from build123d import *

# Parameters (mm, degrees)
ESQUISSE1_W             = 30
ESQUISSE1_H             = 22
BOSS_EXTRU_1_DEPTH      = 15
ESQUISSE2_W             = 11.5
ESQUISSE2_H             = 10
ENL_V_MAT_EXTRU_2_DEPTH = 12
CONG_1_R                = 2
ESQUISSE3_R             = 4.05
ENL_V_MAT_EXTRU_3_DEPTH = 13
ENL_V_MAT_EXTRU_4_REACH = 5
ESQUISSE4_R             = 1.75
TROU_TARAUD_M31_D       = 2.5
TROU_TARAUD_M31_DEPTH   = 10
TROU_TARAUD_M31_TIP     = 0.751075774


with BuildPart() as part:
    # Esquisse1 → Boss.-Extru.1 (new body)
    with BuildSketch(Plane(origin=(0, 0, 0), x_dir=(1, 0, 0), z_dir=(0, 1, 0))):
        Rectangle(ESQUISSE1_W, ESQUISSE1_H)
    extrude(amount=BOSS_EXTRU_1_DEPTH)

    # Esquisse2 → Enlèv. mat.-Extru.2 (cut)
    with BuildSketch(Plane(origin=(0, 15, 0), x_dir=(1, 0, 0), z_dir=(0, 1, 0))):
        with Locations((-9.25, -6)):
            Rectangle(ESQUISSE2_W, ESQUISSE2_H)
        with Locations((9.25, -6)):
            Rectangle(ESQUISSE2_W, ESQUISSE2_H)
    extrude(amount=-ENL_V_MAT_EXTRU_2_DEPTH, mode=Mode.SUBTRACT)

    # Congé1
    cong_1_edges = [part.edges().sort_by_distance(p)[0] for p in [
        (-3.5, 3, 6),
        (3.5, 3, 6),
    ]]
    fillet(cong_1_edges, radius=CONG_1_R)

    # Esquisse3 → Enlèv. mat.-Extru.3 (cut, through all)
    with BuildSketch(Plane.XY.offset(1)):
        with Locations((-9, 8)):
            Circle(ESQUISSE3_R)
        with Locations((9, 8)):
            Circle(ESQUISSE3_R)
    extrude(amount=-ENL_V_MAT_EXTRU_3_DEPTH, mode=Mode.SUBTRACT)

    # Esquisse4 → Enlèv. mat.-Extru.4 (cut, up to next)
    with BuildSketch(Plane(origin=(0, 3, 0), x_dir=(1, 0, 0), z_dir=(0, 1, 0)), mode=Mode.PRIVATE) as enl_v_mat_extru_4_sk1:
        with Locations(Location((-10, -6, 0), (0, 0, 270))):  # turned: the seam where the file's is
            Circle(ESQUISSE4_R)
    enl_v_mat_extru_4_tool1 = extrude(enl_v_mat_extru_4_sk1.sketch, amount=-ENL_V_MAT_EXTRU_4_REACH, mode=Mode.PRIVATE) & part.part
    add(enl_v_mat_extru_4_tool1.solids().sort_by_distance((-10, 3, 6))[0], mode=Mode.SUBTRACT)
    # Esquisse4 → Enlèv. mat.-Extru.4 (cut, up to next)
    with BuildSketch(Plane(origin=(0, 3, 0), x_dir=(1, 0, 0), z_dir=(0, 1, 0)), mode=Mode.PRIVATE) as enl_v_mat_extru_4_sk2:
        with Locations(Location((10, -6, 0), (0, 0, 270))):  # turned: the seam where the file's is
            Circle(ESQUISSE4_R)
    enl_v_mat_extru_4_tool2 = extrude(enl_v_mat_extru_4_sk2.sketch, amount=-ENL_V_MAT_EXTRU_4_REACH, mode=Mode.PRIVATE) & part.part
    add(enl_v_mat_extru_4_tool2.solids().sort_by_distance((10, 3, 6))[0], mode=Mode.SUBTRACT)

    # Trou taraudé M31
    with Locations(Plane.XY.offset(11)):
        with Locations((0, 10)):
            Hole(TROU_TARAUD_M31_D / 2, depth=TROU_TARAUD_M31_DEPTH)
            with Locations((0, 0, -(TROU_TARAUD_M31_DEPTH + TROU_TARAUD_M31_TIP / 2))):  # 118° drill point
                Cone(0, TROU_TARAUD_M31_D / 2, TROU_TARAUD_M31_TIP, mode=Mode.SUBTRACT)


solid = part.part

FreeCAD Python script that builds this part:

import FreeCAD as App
import Part
import Sketcher


def edges_at(feature, points):
    """Names of the edges that pass closest to the given points."""
    edges = feature.Shape.Edges
    near = lambda p: min(range(len(edges)), key=lambda i: edges[i].distToShape(Part.Vertex(*p))[0])
    return sorted({f"Edge{near(p) + 1}" for p in points})


def add_polygon(sketch, points):
    """Adds a closed chain of lines whose ends are joined by coincident constraints."""
    first, n = sketch.GeometryCount, len(points)
    for a, b in zip(points, points[1:] + points[:1]):
        sketch.addGeometry(Part.LineSegment(App.Vector(*a, 0), App.Vector(*b, 0)), False)
    for i in range(n):
        sketch.addConstraint(Sketcher.Constraint("Coincident", first + i, 2, first + (i + 1) % n, 1))

doc = App.newDocument("Part")
params = doc.addObject("Spreadsheet::Sheet", "Params")
for row, (alias, value) in enumerate([
    ("sketch1_width", "30 mm"),
    ("sketch1_height", "22 mm"),
    ("pad1_length", "15 mm"),
    ("sketch2_height", "10 mm"),
    ("sketch2_width", "11.5 mm"),
    ("pocket1_length", "12 mm"),
    ("fillet_radius", "2 mm"),
    ("sketch3_diameter", "8.1 mm"),
    ("sketch4_diameter", "3.5 mm"),
    ("sketch5_diameter", "3.5 mm"),
    ("sketch6_diameter", "2.5 mm"),
    ("hole_diameter", "2.5 mm"),
    ("hole_depth", "10 mm"),
], start=1):
    params.set(f"A{row}", alias)
    params.set(f"B{row}", "=" + value)
    params.setAlias(f"B{row}", alias)

body = doc.addObject("PartDesign::Body", "Body")

sketch1 = body.newObject("Sketcher::SketchObject", "Sketch")
sketch1.AttachmentSupport = (doc.getObject("XZ_Plane"), [""])
sketch1.MapMode = "FlatFace"
add_polygon(sketch1, [(-15, -11), (-15, 11), (15, 11), (15, -11)])
sketch1.addConstraint([
    Sketcher.Constraint("Vertical", 0),
    Sketcher.Constraint("Horizontal", 1),
    Sketcher.Constraint("Vertical", 2),
    Sketcher.Constraint("Horizontal", 3),
    Sketcher.Constraint("Symmetric", 0, 2, 2, 2, -1, 1),
    Sketcher.Constraint("DistanceX", 1, 1, 1, 2, 30.0),
    Sketcher.Constraint("DistanceY", 0, 1, 0, 2, 22.0),
])
sketch1.setExpression("Constraints[9]", "Params.sketch1_width")
sketch1.setExpression("Constraints[10]", "Params.sketch1_height")
pad1 = body.newObject("PartDesign::Pad", "Pad")
pad1.Profile = sketch1
pad1.setExpression("Length", "Params.pad1_length")
pad1.Reversed = True

sketch2 = body.newObject("Sketcher::SketchObject", "Sketch001")
sketch2.AttachmentSupport = (doc.getObject("XZ_Plane"), [""])
sketch2.MapMode = "FlatFace"
sketch2.AttachmentOffset = App.Placement(App.Vector(0, 0, -15), App.Rotation())
add_polygon(sketch2, [(-15, 1), (-15, 11), (-3.5, 11), (-3.5, 1)])
add_polygon(sketch2, [(3.5, 1), (3.5, 11), (15, 11), (15, 1)])
sketch2.addConstraint([
    Sketcher.Constraint("Vertical", 0),
    Sketcher.Constraint("Horizontal", 1),
    Sketcher.Constraint("Vertical", 2),
    Sketcher.Constraint("Horizontal", 3),
    Sketcher.Constraint("Vertical", 4),
    Sketcher.Constraint("Horizontal", 5),
    Sketcher.Constraint("Vertical", 6),
    Sketcher.Constraint("Horizontal", 7),
    Sketcher.Constraint("Symmetric", 1, 2, 4, 2, -2),
    Sketcher.Constraint("Symmetric", 3, 2, 6, 2, -2),
    Sketcher.Constraint("DistanceY", 0, 1, 0, 2, 10.0),
    Sketcher.Constraint("DistanceX", 1, 1, 1, 2, 11.5),
    Sketcher.Constraint("DistanceX", 0, 2, -1, 1, 15.0),
    Sketcher.Constraint("DistanceY", -1, 1, 0, 2, 11.0),
])
sketch2.setExpression("Constraints[18]", "Params.sketch2_height")
sketch2.setExpression("Constraints[19]", "Params.sketch2_width")
pocket1 = body.newObject("PartDesign::Pocket", "Pocket")
pocket1.Profile = sketch2
pocket1.setExpression("Length", "Params.pocket1_length")
pocket1.Reversed = True
doc.recompute()

fillet = body.newObject("PartDesign::Fillet", "Fillet")
fillet.Base = (pocket1, edges_at(pocket1, [(-3.5, 3, 6), (3.5, 3, 6)]))
fillet.setExpression("Radius", "Params.fillet_radius")

sketch3 = body.newObject("Sketcher::SketchObject", "Sketch002")
sketch3.AttachmentSupport = (doc.getObject("XY_Plane"), [""])
sketch3.MapMode = "FlatFace"
sketch3.AttachmentOffset = App.Placement(App.Vector(0, 0, 1), App.Rotation())
sketch3.addGeometry([
    Part.Circle(App.Vector(-9, 8, 0), App.Vector(0, 0, 1), 4.05),
    Part.Circle(App.Vector(9, 8, 0), App.Vector(0, 0, 1), 4.05),
], False)
sketch3.addConstraint([
    Sketcher.Constraint("Equal", 0, 1),
    Sketcher.Constraint("Symmetric", 0, 3, 1, 3, -2),
    Sketcher.Constraint("Diameter", 0, 8.1),
    Sketcher.Constraint("DistanceX", 0, 3, -1, 1, 9.0),
    Sketcher.Constraint("DistanceY", -1, 1, 0, 3, 8.0),
])
sketch3.setExpression("Constraints[2]", "Params.sketch3_diameter")
pocket2 = body.newObject("PartDesign::Pocket", "Pocket001")
pocket2.Profile = sketch3
pocket2.Type = "ThroughAll"

sketch4 = body.newObject("Sketcher::SketchObject", "Sketch003")
sketch4.AttachmentSupport = (doc.getObject("XZ_Plane"), [""])
sketch4.MapMode = "FlatFace"
sketch4.AttachmentOffset = App.Placement(App.Vector(0, 0, -3), App.Rotation())
sketch4.addGeometry(Part.Circle(App.Vector(-10, 6, 0), App.Vector(0, 0, 1), 1.75), False)
sketch4.addConstraint([
    Sketcher.Constraint("Diameter", 0, 3.5),
    Sketcher.Constraint("DistanceX", 0, 3, -1, 1, 10.0),
    Sketcher.Constraint("DistanceY", -1, 1, 0, 3, 6.0),
])
sketch4.setExpression("Constraints[0]", "Params.sketch4_diameter")
pocket3 = body.newObject("PartDesign::Pocket", "Pocket002")
pocket3.Profile = sketch4
pocket3.Type = "UpToFirst"
pocket3.Reversed = True

sketch5 = body.newObject("Sketcher::SketchObject", "Sketch004")
sketch5.AttachmentSupport = (doc.getObject("XZ_Plane"), [""])
sketch5.MapMode = "FlatFace"
sketch5.AttachmentOffset = App.Placement(App.Vector(0, 0, -3), App.Rotation())
sketch5.addGeometry(Part.Circle(App.Vector(10, 6, 0), App.Vector(0, 0, 1), 1.75), False)
sketch5.addConstraint([
    Sketcher.Constraint("Diameter", 0, 3.5),
    Sketcher.Constraint("DistanceX", -1, 1, 0, 3, 10.0),
    Sketcher.Constraint("DistanceY", -1, 1, 0, 3, 6.0),
])
sketch5.setExpression("Constraints[0]", "Params.sketch5_diameter")
pocket4 = body.newObject("PartDesign::Pocket", "Pocket003")
pocket4.Profile = sketch5
pocket4.Type = "UpToFirst"
pocket4.Reversed = True

sketch6 = body.newObject("Sketcher::SketchObject", "Sketch005")
sketch6.AttachmentSupport = (doc.getObject("XY_Plane"), [""])
sketch6.MapMode = "FlatFace"
sketch6.AttachmentOffset = App.Placement(App.Vector(0, 0, 11), App.Rotation())
sketch6.addGeometry(Part.Circle(App.Vector(0, 10, 0), App.Vector(0, 0, 1), 1.25), False)
sketch6.addConstraint([
    Sketcher.Constraint("PointOnObject", 0, 3, -2),
    Sketcher.Constraint("Diameter", 0, 2.5),
    Sketcher.Constraint("DistanceY", -1, 1, 0, 3, 10.0),
])
sketch6.setExpression("Constraints[1]", "Params.sketch6_diameter")
doc.recompute()
hole = body.newObject("PartDesign::Hole", "Hole")
hole.Profile = sketch6
hole.ThreadType = "None"
hole.setExpression("Diameter", "Params.hole_diameter")
hole.DepthType = "Dimension"
hole.setExpression("Depth", "Params.hole_depth")
hole.DrillPoint = "Angled"
hole.DrillPointAngle = 118

doc.recompute()
